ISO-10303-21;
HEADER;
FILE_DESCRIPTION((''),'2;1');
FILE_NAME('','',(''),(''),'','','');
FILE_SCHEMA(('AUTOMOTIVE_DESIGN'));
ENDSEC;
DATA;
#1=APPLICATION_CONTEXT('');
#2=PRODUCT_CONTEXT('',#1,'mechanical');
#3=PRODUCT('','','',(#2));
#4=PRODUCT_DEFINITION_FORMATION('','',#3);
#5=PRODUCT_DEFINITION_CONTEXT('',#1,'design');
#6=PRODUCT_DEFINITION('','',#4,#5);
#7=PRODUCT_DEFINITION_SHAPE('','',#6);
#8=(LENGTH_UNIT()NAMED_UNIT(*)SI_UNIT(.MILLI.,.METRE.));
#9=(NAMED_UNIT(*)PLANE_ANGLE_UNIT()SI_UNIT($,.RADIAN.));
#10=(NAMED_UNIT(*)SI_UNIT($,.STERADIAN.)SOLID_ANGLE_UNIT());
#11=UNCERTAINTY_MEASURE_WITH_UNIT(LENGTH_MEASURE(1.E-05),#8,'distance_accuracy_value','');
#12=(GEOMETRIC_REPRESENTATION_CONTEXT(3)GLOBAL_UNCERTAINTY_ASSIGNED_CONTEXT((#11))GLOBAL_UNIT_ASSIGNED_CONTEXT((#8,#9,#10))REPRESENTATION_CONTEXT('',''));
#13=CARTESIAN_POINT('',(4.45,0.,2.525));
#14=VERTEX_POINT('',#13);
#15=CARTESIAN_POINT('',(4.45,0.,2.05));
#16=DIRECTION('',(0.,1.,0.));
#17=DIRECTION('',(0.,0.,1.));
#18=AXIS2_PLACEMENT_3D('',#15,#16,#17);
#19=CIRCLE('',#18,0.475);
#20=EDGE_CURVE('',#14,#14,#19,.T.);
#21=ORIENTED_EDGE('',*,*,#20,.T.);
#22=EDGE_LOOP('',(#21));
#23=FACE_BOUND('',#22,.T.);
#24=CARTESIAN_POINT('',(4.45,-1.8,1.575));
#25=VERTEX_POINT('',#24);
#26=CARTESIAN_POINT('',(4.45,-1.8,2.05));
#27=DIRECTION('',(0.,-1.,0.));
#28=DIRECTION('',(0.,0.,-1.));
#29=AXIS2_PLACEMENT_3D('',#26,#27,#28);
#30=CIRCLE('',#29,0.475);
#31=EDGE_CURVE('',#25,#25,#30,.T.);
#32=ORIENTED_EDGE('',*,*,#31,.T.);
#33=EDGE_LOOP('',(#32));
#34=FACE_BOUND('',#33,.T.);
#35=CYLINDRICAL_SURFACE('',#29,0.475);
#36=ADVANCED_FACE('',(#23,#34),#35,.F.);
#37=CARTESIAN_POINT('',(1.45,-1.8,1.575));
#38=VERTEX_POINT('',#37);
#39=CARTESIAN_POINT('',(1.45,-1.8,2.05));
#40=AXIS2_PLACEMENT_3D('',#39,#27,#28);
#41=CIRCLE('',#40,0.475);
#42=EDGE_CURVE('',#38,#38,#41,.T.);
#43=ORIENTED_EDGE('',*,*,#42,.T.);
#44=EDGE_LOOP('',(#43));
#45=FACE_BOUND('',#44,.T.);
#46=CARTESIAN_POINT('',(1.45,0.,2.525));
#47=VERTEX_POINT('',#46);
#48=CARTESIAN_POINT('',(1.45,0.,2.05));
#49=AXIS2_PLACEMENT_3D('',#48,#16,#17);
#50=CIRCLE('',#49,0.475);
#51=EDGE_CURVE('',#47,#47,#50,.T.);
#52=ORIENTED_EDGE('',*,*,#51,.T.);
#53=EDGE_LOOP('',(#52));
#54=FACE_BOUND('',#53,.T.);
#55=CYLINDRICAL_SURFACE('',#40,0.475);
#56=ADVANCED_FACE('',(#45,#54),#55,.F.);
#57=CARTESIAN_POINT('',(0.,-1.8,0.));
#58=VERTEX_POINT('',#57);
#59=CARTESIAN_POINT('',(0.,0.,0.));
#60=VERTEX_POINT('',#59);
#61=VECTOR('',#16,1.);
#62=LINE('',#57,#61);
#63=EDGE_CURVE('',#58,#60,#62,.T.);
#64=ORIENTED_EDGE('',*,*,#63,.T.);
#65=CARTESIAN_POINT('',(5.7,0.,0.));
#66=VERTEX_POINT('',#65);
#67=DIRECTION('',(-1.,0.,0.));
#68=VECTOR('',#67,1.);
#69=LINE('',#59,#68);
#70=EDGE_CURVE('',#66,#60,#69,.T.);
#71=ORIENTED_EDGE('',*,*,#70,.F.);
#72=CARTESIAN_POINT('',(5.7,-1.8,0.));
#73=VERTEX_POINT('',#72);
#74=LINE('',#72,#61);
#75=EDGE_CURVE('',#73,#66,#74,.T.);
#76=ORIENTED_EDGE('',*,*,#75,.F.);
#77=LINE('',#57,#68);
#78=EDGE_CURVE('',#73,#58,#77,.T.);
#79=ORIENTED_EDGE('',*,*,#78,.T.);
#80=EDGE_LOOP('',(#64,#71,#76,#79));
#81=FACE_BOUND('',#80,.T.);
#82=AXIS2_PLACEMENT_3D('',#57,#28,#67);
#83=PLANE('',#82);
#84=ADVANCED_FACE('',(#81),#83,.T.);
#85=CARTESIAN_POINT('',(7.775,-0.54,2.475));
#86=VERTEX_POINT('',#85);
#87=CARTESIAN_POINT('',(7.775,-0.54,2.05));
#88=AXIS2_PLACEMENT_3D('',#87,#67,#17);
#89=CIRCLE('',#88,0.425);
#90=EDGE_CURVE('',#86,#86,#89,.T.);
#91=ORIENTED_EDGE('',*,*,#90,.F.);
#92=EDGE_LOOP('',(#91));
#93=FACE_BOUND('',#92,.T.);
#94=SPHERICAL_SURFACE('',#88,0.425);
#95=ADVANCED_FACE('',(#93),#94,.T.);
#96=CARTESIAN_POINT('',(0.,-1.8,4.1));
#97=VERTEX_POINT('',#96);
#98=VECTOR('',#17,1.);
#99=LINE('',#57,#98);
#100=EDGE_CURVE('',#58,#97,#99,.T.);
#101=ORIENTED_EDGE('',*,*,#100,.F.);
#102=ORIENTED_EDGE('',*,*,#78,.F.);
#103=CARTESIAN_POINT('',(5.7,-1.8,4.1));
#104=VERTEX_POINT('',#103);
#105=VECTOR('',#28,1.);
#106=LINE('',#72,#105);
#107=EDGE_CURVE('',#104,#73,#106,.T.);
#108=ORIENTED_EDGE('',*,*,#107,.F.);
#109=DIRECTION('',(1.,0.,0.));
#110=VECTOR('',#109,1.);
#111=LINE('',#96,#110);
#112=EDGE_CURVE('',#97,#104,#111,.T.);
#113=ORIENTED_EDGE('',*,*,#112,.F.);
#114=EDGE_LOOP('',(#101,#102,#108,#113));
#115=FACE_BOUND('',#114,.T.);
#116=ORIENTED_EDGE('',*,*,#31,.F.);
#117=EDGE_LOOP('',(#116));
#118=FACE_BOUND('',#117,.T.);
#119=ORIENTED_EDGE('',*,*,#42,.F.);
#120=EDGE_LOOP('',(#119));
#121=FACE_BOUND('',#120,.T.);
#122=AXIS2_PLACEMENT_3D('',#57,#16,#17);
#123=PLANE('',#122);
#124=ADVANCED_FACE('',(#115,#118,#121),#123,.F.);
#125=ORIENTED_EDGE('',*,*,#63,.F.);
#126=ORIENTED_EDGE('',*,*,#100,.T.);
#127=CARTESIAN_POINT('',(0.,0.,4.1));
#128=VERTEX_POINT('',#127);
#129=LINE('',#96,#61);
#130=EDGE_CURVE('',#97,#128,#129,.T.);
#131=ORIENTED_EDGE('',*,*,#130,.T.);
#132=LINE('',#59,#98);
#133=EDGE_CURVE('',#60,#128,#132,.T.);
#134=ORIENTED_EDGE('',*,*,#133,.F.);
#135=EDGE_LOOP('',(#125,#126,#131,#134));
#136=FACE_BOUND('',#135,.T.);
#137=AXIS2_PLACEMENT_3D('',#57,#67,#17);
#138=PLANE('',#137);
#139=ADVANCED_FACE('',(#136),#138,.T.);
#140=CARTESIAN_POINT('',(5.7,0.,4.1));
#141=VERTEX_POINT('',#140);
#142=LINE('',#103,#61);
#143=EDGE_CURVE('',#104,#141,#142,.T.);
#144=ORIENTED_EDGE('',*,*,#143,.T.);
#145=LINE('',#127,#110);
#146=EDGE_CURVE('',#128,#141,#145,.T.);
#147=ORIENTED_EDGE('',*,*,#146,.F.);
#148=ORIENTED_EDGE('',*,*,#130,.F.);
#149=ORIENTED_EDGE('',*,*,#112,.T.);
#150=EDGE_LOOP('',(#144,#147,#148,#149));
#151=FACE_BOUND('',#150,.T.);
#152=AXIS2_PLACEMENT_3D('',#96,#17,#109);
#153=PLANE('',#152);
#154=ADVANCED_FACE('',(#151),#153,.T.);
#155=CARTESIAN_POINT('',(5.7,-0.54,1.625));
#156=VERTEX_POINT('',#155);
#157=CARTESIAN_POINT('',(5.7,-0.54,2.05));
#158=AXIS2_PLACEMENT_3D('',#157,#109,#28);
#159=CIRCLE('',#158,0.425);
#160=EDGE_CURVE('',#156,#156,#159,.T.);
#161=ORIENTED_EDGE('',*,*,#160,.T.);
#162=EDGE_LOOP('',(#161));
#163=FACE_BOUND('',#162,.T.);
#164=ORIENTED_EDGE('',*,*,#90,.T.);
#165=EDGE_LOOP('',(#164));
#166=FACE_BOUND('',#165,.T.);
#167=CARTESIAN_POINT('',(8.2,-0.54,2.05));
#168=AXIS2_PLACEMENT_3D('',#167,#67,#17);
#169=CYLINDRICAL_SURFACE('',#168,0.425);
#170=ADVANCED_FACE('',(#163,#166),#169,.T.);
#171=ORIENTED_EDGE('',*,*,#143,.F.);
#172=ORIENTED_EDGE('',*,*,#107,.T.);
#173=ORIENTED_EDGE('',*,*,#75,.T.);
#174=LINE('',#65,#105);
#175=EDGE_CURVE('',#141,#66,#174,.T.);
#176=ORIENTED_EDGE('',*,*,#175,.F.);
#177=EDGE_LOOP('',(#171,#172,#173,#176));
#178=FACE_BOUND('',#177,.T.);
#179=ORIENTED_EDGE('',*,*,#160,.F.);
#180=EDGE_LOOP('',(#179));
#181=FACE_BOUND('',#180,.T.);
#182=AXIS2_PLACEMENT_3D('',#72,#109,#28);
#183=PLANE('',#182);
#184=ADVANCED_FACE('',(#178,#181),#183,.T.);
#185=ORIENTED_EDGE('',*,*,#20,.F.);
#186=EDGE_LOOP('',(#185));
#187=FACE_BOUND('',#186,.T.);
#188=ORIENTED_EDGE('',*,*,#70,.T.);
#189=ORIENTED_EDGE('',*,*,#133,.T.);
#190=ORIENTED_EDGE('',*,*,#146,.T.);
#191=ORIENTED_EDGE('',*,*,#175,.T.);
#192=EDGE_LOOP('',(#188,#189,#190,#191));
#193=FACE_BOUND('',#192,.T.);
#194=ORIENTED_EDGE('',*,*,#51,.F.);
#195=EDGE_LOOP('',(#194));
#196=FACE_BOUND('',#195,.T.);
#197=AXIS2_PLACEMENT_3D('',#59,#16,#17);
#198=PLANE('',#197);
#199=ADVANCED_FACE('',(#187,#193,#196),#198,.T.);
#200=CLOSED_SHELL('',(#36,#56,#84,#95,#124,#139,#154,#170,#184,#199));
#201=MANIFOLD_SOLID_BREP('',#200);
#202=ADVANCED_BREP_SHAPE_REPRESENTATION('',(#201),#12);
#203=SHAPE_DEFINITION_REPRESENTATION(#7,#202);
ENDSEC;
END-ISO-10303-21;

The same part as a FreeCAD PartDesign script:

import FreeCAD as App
import Part
import Sketcher
Q = App.Units.Quantity


def edges_at(feature, points):
    """Names of the edges that pass closest to the given points."""
    edges = feature.Shape.Edges
    near = lambda p: min(range(len(edges)), key=lambda i: edges[i].distToShape(Part.Vertex(*p))[0])
    return sorted({f"Edge{near(p) + 1}" for p in points})

doc = App.newDocument("Part")
body = doc.addObject("PartDesign::Body", "Body")

# Sketch on XZ plane
sketch1 = doc.addObject("Sketcher::SketchObject", "Sketch")
body.addObject(sketch1)
sketch1.AttachmentSupport = (doc.XZ_Plane, [""])
sketch1.MapMode = "FlatFace"
sketch1.addGeometry(Part.LineSegment(App.Vector(0, 0, 0), App.Vector(0, 4.1, 0)), False)
sketch1.addGeometry(Part.LineSegment(App.Vector(0, 4.1, 0), App.Vector(5.7, 4.1, 0)), False)
sketch1.addGeometry(Part.LineSegment(App.Vector(5.7, 4.1, 0), App.Vector(5.7, 0, 0)), False)
sketch1.addGeometry(Part.LineSegment(App.Vector(5.7, 0, 0), App.Vector(0, 0, 0)), False)
sketch1.addConstraint(Sketcher.Constraint("Coincident", 0, 2, 1, 1))
sketch1.addConstraint(Sketcher.Constraint("Coincident", 1, 2, 2, 1))
sketch1.addConstraint(Sketcher.Constraint("Coincident", 2, 2, 3, 1))
sketch1.addConstraint(Sketcher.Constraint("Coincident", 3, 2, 0, 1))
sketch1.addConstraint(Sketcher.Constraint("Vertical", 0))
sketch1.addConstraint(Sketcher.Constraint("Horizontal", 1))
sketch1.addConstraint(Sketcher.Constraint("Vertical", 2))
sketch1.addConstraint(Sketcher.Constraint("Horizontal", 3))
sketch1.addConstraint(Sketcher.Constraint("Coincident", 3, 2, -1, 1))
sketch1.addConstraint(Sketcher.Constraint("DistanceX", 1, 1, 1, 2, Q("5.7 mm")))
sketch1.addConstraint(Sketcher.Constraint("DistanceY", 0, 1, 0, 2, Q("4.1 mm")))
pad1 = doc.addObject("PartDesign::Pad", "Pad")
body.addObject(pad1)
pad1.Profile = sketch1
pad1.Length = 1.8

# Sketch on YZ plane
sketch2 = doc.addObject("Sketcher::SketchObject", "Sketch001")
body.addObject(sketch2)
sketch2.AttachmentSupport = (doc.YZ_Plane, [""])
sketch2.MapMode = "FlatFace"
sketch2.AttachmentOffset = App.Placement(App.Vector(0, 0, 5.7), App.Rotation())
sketch2.addGeometry(Part.Circle(App.Vector(-0.54, 2.05, 0), App.Vector(0, 0, 1), 0.425), False)
sketch2.addConstraint(Sketcher.Constraint("Diameter", 0, Q("0.85 mm")))
sketch2.addConstraint(Sketcher.Constraint("DistanceX", 0, 3, -1, 1, Q("0.54 mm")))
sketch2.addConstraint(Sketcher.Constraint("DistanceY", -1, 1, 0, 3, Q("2.05 mm")))
pad2 = doc.addObject("PartDesign::Pad", "Pad001")
body.addObject(pad2)
pad2.Profile = sketch2
pad2.Length = 2.5
doc.recompute()

fillet = doc.addObject("PartDesign::Fillet", "Fillet")
body.addObject(fillet)
fillet.Base = (pad2, edges_at(pad2, [(8.2, -0.54, 2.475)]))
fillet.Radius = 0.425

# Sketch on XZ plane
sketch3 = doc.addObject("Sketcher::SketchObject", "Sketch002")
body.addObject(sketch3)
sketch3.AttachmentSupport = (doc.XZ_Plane, [""])
sketch3.MapMode = "FlatFace"
sketch3.AttachmentOffset = App.Placement(App.Vector(0, 0, 1.8), App.Rotation())
sketch3.addGeometry(Part.Circle(App.Vector(4.45, 2.05, 0), App.Vector(0, 0, 1), 0.475), False)
sketch3.addGeometry(Part.Circle(App.Vector(1.45, 2.05, 0), App.Vector(0, 0, 1), 0.475), False)
sketch3.addConstraint(Sketcher.Constraint("Equal", 0, 1))
sketch3.addConstraint(Sketcher.Constraint("Horizontal", 0, 3, 1, 3))
sketch3.addConstraint(Sketcher.Constraint("Diameter", 0, Q("0.95 mm")))
sketch3.addConstraint(Sketcher.Constraint("DistanceX", 1, 3, 0, 3, Q("3 mm")))
sketch3.addConstraint(Sketcher.Constraint("DistanceX", -1, 1, 0, 3, Q("4.45 mm")))
sketch3.addConstraint(Sketcher.Constraint("DistanceY", -1, 1, 0, 3, Q("2.05 mm")))
doc.recompute()
hole = doc.addObject("PartDesign::Hole", "Hole")
body.addObject(hole)
hole.Profile = sketch3
hole.ThreadType = "None"
hole.Diameter = 0.95
hole.DepthType = "Dimension"
hole.Depth = 3.15
hole.DrillPoint = "Angled"
hole.DrillPointAngle = 118

doc.recompute()
